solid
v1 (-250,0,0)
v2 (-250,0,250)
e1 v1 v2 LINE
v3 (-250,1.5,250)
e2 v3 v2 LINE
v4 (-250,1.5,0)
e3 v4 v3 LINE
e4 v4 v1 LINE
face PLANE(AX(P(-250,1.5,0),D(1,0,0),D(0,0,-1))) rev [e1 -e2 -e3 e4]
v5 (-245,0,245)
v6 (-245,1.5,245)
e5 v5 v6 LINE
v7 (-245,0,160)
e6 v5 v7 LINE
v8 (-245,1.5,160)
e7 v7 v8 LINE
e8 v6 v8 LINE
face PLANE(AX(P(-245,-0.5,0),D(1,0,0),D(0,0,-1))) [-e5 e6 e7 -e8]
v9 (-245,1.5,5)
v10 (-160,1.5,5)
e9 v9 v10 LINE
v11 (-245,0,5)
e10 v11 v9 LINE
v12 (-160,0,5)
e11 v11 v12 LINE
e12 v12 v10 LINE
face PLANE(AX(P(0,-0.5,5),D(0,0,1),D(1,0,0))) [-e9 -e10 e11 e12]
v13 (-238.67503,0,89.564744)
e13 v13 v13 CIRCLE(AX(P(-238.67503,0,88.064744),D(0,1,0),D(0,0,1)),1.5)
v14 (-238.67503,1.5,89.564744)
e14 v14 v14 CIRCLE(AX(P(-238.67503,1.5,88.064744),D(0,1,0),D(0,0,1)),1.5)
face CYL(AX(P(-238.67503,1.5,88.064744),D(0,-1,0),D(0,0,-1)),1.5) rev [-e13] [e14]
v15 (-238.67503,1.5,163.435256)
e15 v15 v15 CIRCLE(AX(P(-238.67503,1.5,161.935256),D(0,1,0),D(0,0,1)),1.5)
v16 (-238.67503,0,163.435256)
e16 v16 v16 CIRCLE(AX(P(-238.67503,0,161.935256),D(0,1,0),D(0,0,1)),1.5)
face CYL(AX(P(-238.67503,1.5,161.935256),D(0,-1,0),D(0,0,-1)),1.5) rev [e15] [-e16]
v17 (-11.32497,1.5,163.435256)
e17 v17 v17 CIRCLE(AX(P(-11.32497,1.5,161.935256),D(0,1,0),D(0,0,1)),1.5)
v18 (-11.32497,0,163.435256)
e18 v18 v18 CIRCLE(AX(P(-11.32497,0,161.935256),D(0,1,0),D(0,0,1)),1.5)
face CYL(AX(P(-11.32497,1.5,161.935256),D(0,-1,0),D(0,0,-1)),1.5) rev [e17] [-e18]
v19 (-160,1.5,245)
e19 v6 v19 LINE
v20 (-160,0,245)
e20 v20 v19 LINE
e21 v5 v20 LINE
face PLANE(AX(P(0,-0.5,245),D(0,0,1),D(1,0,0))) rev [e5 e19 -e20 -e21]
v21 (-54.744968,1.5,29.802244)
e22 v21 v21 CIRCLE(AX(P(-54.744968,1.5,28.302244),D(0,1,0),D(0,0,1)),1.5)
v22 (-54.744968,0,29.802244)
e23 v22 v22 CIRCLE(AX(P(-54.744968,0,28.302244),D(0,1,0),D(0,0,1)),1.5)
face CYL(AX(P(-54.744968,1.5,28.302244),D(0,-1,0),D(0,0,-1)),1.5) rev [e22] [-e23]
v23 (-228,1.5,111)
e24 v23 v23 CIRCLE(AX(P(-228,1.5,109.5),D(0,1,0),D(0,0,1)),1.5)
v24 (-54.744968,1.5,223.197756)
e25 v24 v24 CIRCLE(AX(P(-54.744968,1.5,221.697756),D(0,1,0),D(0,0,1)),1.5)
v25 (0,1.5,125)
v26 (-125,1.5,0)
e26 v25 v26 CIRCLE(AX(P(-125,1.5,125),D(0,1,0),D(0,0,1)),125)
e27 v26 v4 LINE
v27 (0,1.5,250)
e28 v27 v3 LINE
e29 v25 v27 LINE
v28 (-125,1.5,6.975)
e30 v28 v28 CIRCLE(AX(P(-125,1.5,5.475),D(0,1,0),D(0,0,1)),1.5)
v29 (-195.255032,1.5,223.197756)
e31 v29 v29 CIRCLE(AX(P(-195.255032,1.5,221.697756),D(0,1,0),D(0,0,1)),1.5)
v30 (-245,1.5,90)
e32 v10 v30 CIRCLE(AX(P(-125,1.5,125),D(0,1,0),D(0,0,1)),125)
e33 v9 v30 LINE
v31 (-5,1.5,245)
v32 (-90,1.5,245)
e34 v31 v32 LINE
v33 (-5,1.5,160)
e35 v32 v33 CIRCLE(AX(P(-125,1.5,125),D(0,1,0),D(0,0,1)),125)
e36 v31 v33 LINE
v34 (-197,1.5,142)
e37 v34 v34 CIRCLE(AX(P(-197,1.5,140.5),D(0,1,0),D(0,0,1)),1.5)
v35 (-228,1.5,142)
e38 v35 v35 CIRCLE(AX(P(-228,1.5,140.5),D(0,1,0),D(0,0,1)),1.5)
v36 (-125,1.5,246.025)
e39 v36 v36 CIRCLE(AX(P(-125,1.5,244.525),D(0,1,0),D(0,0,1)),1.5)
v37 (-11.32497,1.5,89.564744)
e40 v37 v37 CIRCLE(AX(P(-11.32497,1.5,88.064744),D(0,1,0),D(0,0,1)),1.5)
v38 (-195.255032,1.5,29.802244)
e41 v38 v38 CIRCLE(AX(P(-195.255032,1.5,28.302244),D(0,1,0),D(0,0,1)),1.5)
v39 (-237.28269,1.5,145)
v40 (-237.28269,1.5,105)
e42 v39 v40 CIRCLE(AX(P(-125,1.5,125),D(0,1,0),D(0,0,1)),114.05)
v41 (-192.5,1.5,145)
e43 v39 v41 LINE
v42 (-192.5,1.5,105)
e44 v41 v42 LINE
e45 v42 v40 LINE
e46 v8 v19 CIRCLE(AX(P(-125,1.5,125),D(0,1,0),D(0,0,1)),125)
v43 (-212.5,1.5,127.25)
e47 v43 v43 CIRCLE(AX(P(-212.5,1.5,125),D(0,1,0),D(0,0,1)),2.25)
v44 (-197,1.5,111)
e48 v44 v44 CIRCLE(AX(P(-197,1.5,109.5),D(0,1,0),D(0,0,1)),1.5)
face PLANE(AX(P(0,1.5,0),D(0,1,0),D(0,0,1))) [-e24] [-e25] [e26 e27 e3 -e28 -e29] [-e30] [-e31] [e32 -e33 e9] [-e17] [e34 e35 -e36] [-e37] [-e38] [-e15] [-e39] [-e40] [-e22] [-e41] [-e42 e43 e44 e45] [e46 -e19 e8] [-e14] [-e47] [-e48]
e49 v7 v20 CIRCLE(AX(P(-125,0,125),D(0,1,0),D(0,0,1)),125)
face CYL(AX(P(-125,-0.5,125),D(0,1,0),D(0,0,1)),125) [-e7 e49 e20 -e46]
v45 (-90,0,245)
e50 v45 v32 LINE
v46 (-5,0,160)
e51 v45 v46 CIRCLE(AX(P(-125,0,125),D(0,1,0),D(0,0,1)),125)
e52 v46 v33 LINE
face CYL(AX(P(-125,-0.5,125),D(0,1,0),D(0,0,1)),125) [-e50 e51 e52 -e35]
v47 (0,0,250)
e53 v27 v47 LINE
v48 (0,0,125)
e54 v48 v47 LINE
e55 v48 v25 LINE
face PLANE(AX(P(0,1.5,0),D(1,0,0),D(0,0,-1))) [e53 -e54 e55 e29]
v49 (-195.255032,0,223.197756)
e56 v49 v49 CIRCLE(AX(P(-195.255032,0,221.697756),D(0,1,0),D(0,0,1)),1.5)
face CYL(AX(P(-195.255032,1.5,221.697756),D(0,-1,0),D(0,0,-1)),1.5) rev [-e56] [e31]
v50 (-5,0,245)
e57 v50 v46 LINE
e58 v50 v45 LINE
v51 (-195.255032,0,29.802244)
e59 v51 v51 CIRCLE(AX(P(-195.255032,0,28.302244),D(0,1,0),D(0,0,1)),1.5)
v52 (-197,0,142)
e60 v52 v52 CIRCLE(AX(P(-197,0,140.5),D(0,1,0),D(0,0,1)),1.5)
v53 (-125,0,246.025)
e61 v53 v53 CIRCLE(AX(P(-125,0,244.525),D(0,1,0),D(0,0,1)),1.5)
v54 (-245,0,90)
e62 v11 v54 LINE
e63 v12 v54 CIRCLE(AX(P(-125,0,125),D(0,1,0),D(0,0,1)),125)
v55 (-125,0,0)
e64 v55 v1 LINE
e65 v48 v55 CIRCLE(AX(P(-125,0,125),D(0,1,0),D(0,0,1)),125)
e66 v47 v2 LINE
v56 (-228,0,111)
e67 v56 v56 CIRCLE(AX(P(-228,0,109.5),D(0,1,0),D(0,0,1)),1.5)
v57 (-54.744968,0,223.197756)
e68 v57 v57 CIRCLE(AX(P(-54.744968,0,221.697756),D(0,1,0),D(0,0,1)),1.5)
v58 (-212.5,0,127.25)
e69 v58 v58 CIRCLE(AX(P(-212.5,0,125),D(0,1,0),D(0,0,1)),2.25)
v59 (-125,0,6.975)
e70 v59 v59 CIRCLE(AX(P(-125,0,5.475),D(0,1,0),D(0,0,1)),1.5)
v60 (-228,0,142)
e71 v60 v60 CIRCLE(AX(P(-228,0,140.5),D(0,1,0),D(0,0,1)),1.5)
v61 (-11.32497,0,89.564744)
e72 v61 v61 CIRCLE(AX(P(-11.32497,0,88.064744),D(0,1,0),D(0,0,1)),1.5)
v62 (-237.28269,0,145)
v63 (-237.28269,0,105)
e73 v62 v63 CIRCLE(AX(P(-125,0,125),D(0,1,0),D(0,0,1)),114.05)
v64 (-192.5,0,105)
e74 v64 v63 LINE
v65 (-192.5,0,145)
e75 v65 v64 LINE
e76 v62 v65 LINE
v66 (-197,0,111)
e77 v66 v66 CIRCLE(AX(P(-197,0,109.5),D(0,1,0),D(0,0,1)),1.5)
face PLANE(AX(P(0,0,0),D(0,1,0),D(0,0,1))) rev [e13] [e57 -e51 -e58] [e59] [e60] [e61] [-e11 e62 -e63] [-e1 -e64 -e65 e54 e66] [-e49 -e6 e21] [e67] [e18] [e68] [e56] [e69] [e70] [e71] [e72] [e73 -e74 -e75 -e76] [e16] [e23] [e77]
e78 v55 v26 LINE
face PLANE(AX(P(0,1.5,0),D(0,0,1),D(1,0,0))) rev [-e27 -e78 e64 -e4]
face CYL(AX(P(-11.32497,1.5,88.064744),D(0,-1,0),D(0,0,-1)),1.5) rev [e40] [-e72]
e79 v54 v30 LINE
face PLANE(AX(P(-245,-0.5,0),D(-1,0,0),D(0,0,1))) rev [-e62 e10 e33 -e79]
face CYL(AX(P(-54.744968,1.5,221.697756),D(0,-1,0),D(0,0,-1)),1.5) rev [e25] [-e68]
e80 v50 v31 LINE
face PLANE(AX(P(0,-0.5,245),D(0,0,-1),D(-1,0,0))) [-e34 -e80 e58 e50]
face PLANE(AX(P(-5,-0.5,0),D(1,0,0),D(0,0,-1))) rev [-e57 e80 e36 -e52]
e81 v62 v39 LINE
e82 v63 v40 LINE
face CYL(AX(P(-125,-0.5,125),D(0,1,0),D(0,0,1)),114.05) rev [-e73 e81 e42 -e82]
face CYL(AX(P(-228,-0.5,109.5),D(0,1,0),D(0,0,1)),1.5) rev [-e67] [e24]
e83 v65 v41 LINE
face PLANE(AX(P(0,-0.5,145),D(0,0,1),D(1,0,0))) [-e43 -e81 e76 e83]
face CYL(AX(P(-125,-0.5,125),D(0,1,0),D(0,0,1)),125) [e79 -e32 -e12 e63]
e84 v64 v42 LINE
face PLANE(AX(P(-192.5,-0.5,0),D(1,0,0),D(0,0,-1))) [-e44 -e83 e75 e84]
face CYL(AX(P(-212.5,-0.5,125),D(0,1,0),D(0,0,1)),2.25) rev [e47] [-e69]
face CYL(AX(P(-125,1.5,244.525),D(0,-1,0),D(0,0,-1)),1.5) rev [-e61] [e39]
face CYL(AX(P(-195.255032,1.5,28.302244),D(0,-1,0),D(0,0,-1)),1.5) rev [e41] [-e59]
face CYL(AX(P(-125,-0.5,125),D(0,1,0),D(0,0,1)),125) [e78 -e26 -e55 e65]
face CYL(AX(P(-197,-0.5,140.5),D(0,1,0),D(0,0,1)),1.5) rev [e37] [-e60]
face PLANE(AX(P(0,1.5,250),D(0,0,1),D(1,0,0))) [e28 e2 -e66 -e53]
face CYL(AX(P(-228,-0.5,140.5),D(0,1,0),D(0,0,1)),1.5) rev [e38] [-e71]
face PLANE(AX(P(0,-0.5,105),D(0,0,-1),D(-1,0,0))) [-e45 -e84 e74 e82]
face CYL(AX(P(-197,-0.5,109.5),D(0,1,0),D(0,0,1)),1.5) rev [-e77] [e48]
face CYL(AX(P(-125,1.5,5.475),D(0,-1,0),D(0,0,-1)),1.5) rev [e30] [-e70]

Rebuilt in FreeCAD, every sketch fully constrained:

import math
import FreeCAD as App
import Part
import Sketcher
from FreeCAD import Vector
Q = App.Units.Quantity

doc = App.newDocument("Part")
body = doc.addObject("PartDesign::Body", "Body")

# Sketch on XZ plane
sketch1 = body.newObject("Sketcher::SketchObject", "Sketch")
sketch1.AttachmentSupport = (doc.getObject("XZ_Plane"), [""])
sketch1.MapMode = "FlatFace"
sketch1.addGeometry([
    Part.LineSegment(Vector(-250, 0, 0), Vector(-250, 250, 0)),  # 0
    Part.LineSegment(Vector(-250, 250, 0), Vector(0, 250, 0)),  # 1
    Part.LineSegment(Vector(0, 250, 0), Vector(0, 0, 0)),  # 2
    Part.LineSegment(Vector(0, 0, 0), Vector(-250, 0, 0)),  # 3
    Part.Circle(Vector(-195.3, 221.7, 0), Vector(0, 0, 1), 1.5),  # 4
    Part.Circle(Vector(-238.7, 161.9, 0), Vector(0, 0, 1), 1.5),  # 5
    Part.Circle(Vector(-125, 244.5, 0), Vector(0, 0, 1), 1.5),  # 6
    Part.Circle(Vector(-54.7, 221.7, 0), Vector(0, 0, 1), 1.5),  # 7
    Part.Circle(Vector(-11.3, 161.9, 0), Vector(0, 0, 1), 1.5),  # 8
    Part.Circle(Vector(-238.7, 88.1, 0), Vector(0, 0, 1), 1.5),  # 9
    Part.Circle(Vector(-195.3, 28.3, 0), Vector(0, 0, 1), 1.5),  # 10
    Part.Circle(Vector(-11.3, 88.1, 0), Vector(0, 0, 1), 1.5),  # 11
    Part.Circle(Vector(-125, 5.5, 0), Vector(0, 0, 1), 1.5),  # 12
    Part.Circle(Vector(-54.7, 28.3, 0), Vector(0, 0, 1), 1.5),  # 13
], False)
sketch1.addConstraint([
    Sketcher.Constraint("Coincident", 0, 2, 1, 1),
    Sketcher.Constraint("Coincident", 1, 2, 2, 1),
    Sketcher.Constraint("Coincident", 2, 2, 3, 1),
    Sketcher.Constraint("Coincident", 3, 2, 0, 1),
    Sketcher.Constraint("Vertical", 0),
    Sketcher.Constraint("Horizontal", 1),
    Sketcher.Constraint("Vertical", 2),
    Sketcher.Constraint("Horizontal", 3),
    Sketcher.Constraint("Coincident", 2, 2, -1, 1),
    Sketcher.Constraint("Equal", 4, 5),
    Sketcher.Constraint("Equal", 5, 6),
    Sketcher.Constraint("Equal", 6, 7),
    Sketcher.Constraint("Equal", 7, 8),
    Sketcher.Constraint("Equal", 8, 9),
    Sketcher.Constraint("Equal", 9, 10),
    Sketcher.Constraint("Equal", 10, 11),
    Sketcher.Constraint("Equal", 11, 12),
    Sketcher.Constraint("Equal", 12, 13),
    Sketcher.Constraint("Horizontal", 4, 3, 7, 3),
    Sketcher.Constraint("Horizontal", 5, 3, 8, 3),
    Sketcher.Constraint("Horizontal", 9, 3, 11, 3),
    Sketcher.Constraint("Horizontal", 10, 3, 13, 3),
    Sketcher.Constraint("Vertical", 5, 3, 9, 3),
    Sketcher.Constraint("Vertical", 4, 3, 10, 3),
    Sketcher.Constraint("Vertical", 8, 3, 11, 3),
    Sketcher.Constraint("Vertical", 6, 3, 12, 3),
    Sketcher.Constraint("Vertical", 7, 3, 13, 3),
    Sketcher.Constraint("Equal", 3, 0),
    Sketcher.Constraint("Diameter", 4, Q("3 mm")),
    Sketcher.Constraint("DistanceX", 1, 1, 1, 2, Q("250 mm")),
    Sketcher.Constraint("DistanceX", 6, 3, -1, 1, Q("125 mm")),
    Sketcher.Constraint("DistanceY", -1, 1, 6, 3, Q("244.525 mm")),
    Sketcher.Constraint("DistanceY", -1, 1, 12, 3, Q("5.475 mm")),
    Sketcher.Constraint("DistanceY", 5, 3, 4, 3, Q("59.7625 mm")),
    Sketcher.Constraint("DistanceY", 10, 3, 9, 3, Q("59.7625 mm")),
    Sketcher.Constraint("DistanceX", 5, 3, -1, 1, Q("238.67503 mm")),
    Sketcher.Constraint("DistanceX", 8, 3, -1, 1, Q("11.32497 mm")),
    Sketcher.Constraint("DistanceX", 4, 3, -1, 1, Q("195.255032 mm")),
    Sketcher.Constraint("DistanceY", -1, 1, 4, 3, Q("221.697756 mm")),
    Sketcher.Constraint("DistanceX", 7, 3, -1, 1, Q("54.744968 mm")),
    Sketcher.Constraint("DistanceY", -1, 1, 9, 3, Q("88.064744 mm")),
])
pad1 = body.newObject("PartDesign::Pad", "Pad")
pad1.Profile = sketch1
pad1.Length = 1.5
pad1.Reversed = True

# Sketch on XZ plane
sketch2 = body.newObject("Sketcher::SketchObject", "Sketch001")
sketch2.AttachmentSupport = (doc.getObject("XZ_Plane"), [""])
sketch2.MapMode = "FlatFace"
sketch2.AttachmentOffset = App.Placement(Vector(0, 0, -1.5), App.Rotation())
sketch2.addGeometry([
    Part.Circle(Vector(-212.5, 125, 0), Vector(0, 0, 1), 2.2),  # 0
    Part.Circle(Vector(-228, 140.5, 0), Vector(0, 0, 1), 1.5),  # 1
    Part.Circle(Vector(-228, 109.5, 0), Vector(0, 0, 1), 1.5),  # 2
    Part.Circle(Vector(-197, 109.5, 0), Vector(0, 0, 1), 1.5),  # 3
    Part.Circle(Vector(-197, 140.5, 0), Vector(0, 0, 1), 1.5),  # 4
], False)
sketch2.addConstraint([
    Sketcher.Constraint("Equal", 1, 2),
    Sketcher.Constraint("Equal", 2, 3),
    Sketcher.Constraint("Equal", 3, 4),
    Sketcher.Constraint("Horizontal", 2, 3, 3, 3),
    Sketcher.Constraint("Horizontal", 1, 3, 4, 3),
    Sketcher.Constraint("Vertical", 1, 3, 2, 3),
    Sketcher.Constraint("Vertical", 3, 3, 4, 3),
    Sketcher.Constraint("Diameter", 1, Q("3 mm")),
    Sketcher.Constraint("Diameter", 0, Q("4.5 mm")),
    Sketcher.Constraint("DistanceY", -1, 1, 0, 3, Q("125 mm")),
    Sketcher.Constraint("DistanceX", 1, 3, -1, 1, Q("228 mm")),
    Sketcher.Constraint("DistanceX", 3, 3, -1, 1, Q("197 mm")),
    Sketcher.Constraint("DistanceY", 2, 3, 1, 3, Q("31 mm")),
    Sketcher.Constraint("DistanceX", 0, 3, -1, 1, Q("212.5 mm")),
    Sketcher.Constraint("DistanceY", -1, 1, 1, 3, Q("140.5 mm")),
])
pocket1 = body.newObject("PartDesign::Pocket", "Pocket")
pocket1.Profile = sketch2
pocket1.Length = 2
pocket1.Reversed = True

# Sketch on XZ plane
sketch3 = body.newObject("Sketcher::SketchObject", "Sketch002")
sketch3.AttachmentSupport = (doc.getObject("XZ_Plane"), [""])
sketch3.MapMode = "FlatFace"
sketch3.AttachmentOffset = App.Placement(Vector(0, 0, -1.5), App.Rotation())
sketch3.addGeometry([
    Part.ArcOfCircle(Part.Circle(Vector(-125, 125, 0), Vector(0, 0, 1), 125), math.radians(-164), math.radians(-106)),  # 0
    Part.LineSegment(Vector(-160, 5, 0), Vector(-245, 5, 0)),  # 1
    Part.LineSegment(Vector(-245, 5, 0), Vector(-245, 90, 0)),  # 2
    Part.ArcOfCircle(Part.Circle(Vector(-125, 125, 0), Vector(0, 0, 1), 125), math.radians(106), math.radians(164)),  # 3
    Part.LineSegment(Vector(-245, 160, 0), Vector(-245, 245, 0)),  # 4
    Part.LineSegment(Vector(-245, 245, 0), Vector(-160, 245, 0)),  # 5
    Part.LineSegment(Vector(-5, 245, 0), Vector(-5, 160, 0)),  # 6
    Part.ArcOfCircle(Part.Circle(Vector(-125, 125, 0), Vector(0, 0, 1), 125), math.radians(16), math.radians(74)),  # 7
    Part.LineSegment(Vector(-90, 245, 0), Vector(-5, 245, 0)),  # 8
    Part.LineSegment(Vector(-5, 5, 0), Vector(-90, 5, 0)),  # 9
    Part.ArcOfCircle(Part.Circle(Vector(-125, 125, 0), Vector(0, 0, 1), 125), math.radians(-74), math.radians(-16)),  # 10
    Part.LineSegment(Vector(-5, 90, 0), Vector(-5, 5, 0)),  # 11
    Part.ArcOfCircle(Part.Circle(Vector(-125, 125, 0), Vector(0, 0, 1), 114), math.radians(-90), math.radians(0)),  # 12
    Part.ArcOfCircle(Part.Circle(Vector(-125, 125, 0), Vector(0, 0, 1), 114), math.radians(-170), math.radians(-90)),  # 13
    Part.LineSegment(Vector(-237, 105, 0), Vector(-192, 105, 0)),  # 14
    Part.LineSegment(Vector(-192, 105, 0), Vector(-192, 145, 0)),  # 15
    Part.LineSegment(Vector(-192, 145, 0), Vector(-237, 145, 0)),  # 16
    Part.ArcOfCircle(Part.Circle(Vector(-125, 125, 0), Vector(0, 0, 1), 114), math.radians(0), math.radians(170)),  # 17
], False)
sketch3.addConstraint([
    Sketcher.Constraint("Coincident", 0, 2, 1, 1),
    Sketcher.Constraint("Coincident", 1, 2, 2, 1),
    Sketcher.Constraint("Coincident", 2, 2, 0, 1),
    Sketcher.Constraint("Coincident", 3, 2, 4, 1),
    Sketcher.Constraint("Coincident", 4, 2, 5, 1),
    Sketcher.Constraint("Coincident", 5, 2, 3, 1),
    Sketcher.Constraint("Coincident", 6, 2, 7, 1),
    Sketcher.Constraint("Coincident", 7, 2, 8, 1),
    Sketcher.Constraint("Coincident", 8, 2, 6, 1),
    Sketcher.Constraint("Coincident", 9, 2, 10, 1),
    Sketcher.Constraint("Coincident", 10, 2, 11, 1),
    Sketcher.Constraint("Coincident", 11, 2, 9, 1),
    Sketcher.Constraint("Tangent", 12, 1, 13, 2),
    Sketcher.Constraint("Coincident", 13, 1, 14, 1),
    Sketcher.Constraint("Coincident", 14, 2, 15, 1),
    Sketcher.Constraint("Coincident", 15, 2, 16, 1),
    Sketcher.Constraint("Coincident", 16, 2, 17, 2),
    Sketcher.Constraint("Tangent", 17, 1, 12, 2),
    Sketcher.Constraint("Horizontal", 1),
    Sketcher.Constraint("Vertical", 2),
    Sketcher.Constraint("Vertical", 4),
    Sketcher.Constraint("Horizontal", 5),
    Sketcher.Constraint("Vertical", 6),
    Sketcher.Constraint("Horizontal", 8),
    Sketcher.Constraint("Horizontal", 9),
    Sketcher.Constraint("Vertical", 11),
    Sketcher.Constraint("Horizontal", 14),
    Sketcher.Constraint("Vertical", 15),
    Sketcher.Constraint("Horizontal", 16),
    Sketcher.Constraint("Coincident", 3, 3, 0, 3),
    Sketcher.Constraint("Coincident", 7, 3, 0, 3),
    Sketcher.Constraint("Coincident", 10, 3, 0, 3),
    Sketcher.Constraint("Coincident", 12, 3, 0, 3),
    Sketcher.Constraint("Equal", 0, 3),
    Sketcher.Constraint("Equal", 3, 7),
    Sketcher.Constraint("Equal", 7, 10),
    Sketcher.Constraint("Equal", 12, 13),
    Sketcher.Constraint("Equal", 13, 17),
    Sketcher.Constraint("Horizontal", 3, 2, 6, 2),
    Sketcher.Constraint("Horizontal", 5, 2, 7, 2),
    Sketcher.Constraint("Horizontal", 1, 2, 9, 2),
    Sketcher.Constraint("Horizontal", 2, 2, 10, 2),
    Sketcher.Constraint("Horizontal", 13, 3, 17, 1),
    Sketcher.Constraint("Vertical", 2, 2, 3, 2),
    Sketcher.Constraint("Vertical", 0, 2, 5, 2),
    Sketcher.Constraint("Vertical", 17, 3, 12, 1),
    Sketcher.Constraint("Vertical", 13, 1, 16, 2),
    Sketcher.Constraint("Equal", 9, 2),
    Sketcher.Constraint("Radius", 0, Q("125 mm")),
    Sketcher.Constraint("DistanceX", 1, 2, 1, 1, Q("85 mm")),
    Sketcher.Constraint("DistanceY", 15, 1, 15, 2, Q("40 mm")),
    Sketcher.Constraint("Radius", 12, Q("114.05 mm")),
    Sketcher.Constraint("DistanceX", 0, 3, -1, 1, Q("125 mm")),
    Sketcher.Constraint("DistanceY", -1, 1, 0, 3, Q("125 mm")),
    Sketcher.Constraint("DistanceX", 14, 2, -1, 1, Q("192.5 mm")),
])
pocket2 = body.newObject("PartDesign::Pocket", "Pocket001")
pocket2.Profile = sketch3
pocket2.Length = 2
pocket2.Reversed = True

# Sketch on XZ plane
sketch4 = body.newObject("Sketcher::SketchObject", "Sketch003")
sketch4.AttachmentSupport = (doc.getObject("XZ_Plane"), [""])
sketch4.MapMode = "FlatFace"
sketch4.AttachmentOffset = App.Placement(Vector(0, 0, -1.5), App.Rotation())
sketch4.addGeometry([
    Part.LineSegment(Vector(0, 0, 0), Vector(-125, 0, 0)),
    Part.ArcOfCircle(Part.Circle(Vector(-125, 125, 0), Vector(0, 0, 1), 125), math.radians(-90), math.radians(0)),
    Part.LineSegment(Vector(0, 125, 0), Vector(0, 0, 0)),
], False)
sketch4.addConstraint([
    Sketcher.Constraint("Tangent", 0, 2, 1, 1),
    Sketcher.Constraint("Tangent", 1, 2, 2, 1),
    Sketcher.Constraint("Coincident", 2, 2, 0, 1),
    Sketcher.Constraint("Horizontal", 0),
    Sketcher.Constraint("Vertical", 2),
    Sketcher.Constraint("Coincident", 2, 2, -1, 1),
    Sketcher.Constraint("Radius", 1, Q("125 mm")),
])
pocket3 = body.newObject("PartDesign::Pocket", "Pocket002")
pocket3.Profile = sketch4
pocket3.Length = 2
pocket3.Reversed = True

doc.recompute()
